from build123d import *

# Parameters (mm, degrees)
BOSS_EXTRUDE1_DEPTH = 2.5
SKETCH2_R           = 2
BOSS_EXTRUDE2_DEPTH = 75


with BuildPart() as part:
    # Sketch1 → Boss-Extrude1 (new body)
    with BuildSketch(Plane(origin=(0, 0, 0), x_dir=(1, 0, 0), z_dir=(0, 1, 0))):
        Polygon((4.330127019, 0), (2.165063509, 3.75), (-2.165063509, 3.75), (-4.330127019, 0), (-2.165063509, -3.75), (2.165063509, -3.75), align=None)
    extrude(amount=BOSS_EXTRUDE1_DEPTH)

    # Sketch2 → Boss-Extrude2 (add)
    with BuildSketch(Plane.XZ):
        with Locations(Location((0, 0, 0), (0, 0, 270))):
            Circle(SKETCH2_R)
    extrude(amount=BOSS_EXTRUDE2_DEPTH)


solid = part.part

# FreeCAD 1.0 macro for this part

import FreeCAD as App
import Part
import Sketcher

V = App.Vector
Q = App.Units.Quantity


def add_polygon(sketch, points):
    """Adds a closed chain of lines whose ends are joined by coincident constraints."""
    first, n = sketch.GeometryCount, len(points)
    for a, b in zip(points, points[1:] + points[:1]):
        sketch.addGeometry(Part.LineSegment(App.Vector(*a, 0), App.Vector(*b, 0)), False)
    for i in range(n):
        sketch.addConstraint(Sketcher.Constraint("Coincident", first + i, 2, first + (i + 1) % n, 1))

doc = App.newDocument("Part")
body = doc.addObject("PartDesign::Body", "Body")

# Sketch on XZ plane
sketch1 = body.newObject("Sketcher::SketchObject", "Sketch")
sketch1.AttachmentSupport = (doc.getObject("XZ_Plane"), [""])
sketch1.MapMode = "FlatFace"
add_polygon(sketch1, [(4.3, 0), (2.2, -3.8), (-2.2, -3.8), (-4.3, 0), (-2.2, 3.8), (2.2, 3.8)])  # lines 0-5
sketch1.addConstraint(Sketcher.Constraint("Horizontal", 1))
sketch1.addConstraint(Sketcher.Constraint("Horizontal", 4))
sketch1.addConstraint(Sketcher.Constraint("Symmetric", 0, 2, 3, 2, -1, 1))
sketch1.addConstraint(Sketcher.Constraint("Symmetric", 2, 2, 5, 2, -1, 1))
sketch1.addConstraint(Sketcher.Constraint("PointOnObject", 2, 2, -1))
sketch1.addConstraint(Sketcher.Constraint("Parallel", 2, 5))
sketch1.addConstraint(Sketcher.Constraint("Vertical", 1, 2, 3, 2))
sketch1.addConstraint(Sketcher.Constraint("Angle", 0, Q("-120 deg")))
sketch1.addConstraint(Sketcher.Constraint("DistanceY", 1, 2, 3, 2, 7.5))
sketch1.addConstraint(Sketcher.Constraint("DistanceX", 1, 2, 1, 1, 4.330127))
pad1 = body.newObject("PartDesign::Pad", "Pad")
pad1.Profile = sketch1
pad1.Length = 2.5
pad1.Reversed = True

# Sketch on XZ plane
sketch2 = body.newObject("Sketcher::SketchObject", "Sketch001")
sketch2.AttachmentSupport = (doc.getObject("XZ_Plane"), [""])
sketch2.MapMode = "FlatFace"
sketch2.addGeometry(Part.Circle(V(0, 0, 0), V(0, 0, 1), 2), False)
sketch2.addConstraint(Sketcher.Constraint("Coincident", 0, 3, -1, 1))
sketch2.addConstraint(Sketcher.Constraint("Diameter", 0, 4.0))
pad2 = body.newObject("PartDesign::Pad", "Pad001")
pad2.Profile = sketch2
pad2.Length = 75

doc.recompute()
